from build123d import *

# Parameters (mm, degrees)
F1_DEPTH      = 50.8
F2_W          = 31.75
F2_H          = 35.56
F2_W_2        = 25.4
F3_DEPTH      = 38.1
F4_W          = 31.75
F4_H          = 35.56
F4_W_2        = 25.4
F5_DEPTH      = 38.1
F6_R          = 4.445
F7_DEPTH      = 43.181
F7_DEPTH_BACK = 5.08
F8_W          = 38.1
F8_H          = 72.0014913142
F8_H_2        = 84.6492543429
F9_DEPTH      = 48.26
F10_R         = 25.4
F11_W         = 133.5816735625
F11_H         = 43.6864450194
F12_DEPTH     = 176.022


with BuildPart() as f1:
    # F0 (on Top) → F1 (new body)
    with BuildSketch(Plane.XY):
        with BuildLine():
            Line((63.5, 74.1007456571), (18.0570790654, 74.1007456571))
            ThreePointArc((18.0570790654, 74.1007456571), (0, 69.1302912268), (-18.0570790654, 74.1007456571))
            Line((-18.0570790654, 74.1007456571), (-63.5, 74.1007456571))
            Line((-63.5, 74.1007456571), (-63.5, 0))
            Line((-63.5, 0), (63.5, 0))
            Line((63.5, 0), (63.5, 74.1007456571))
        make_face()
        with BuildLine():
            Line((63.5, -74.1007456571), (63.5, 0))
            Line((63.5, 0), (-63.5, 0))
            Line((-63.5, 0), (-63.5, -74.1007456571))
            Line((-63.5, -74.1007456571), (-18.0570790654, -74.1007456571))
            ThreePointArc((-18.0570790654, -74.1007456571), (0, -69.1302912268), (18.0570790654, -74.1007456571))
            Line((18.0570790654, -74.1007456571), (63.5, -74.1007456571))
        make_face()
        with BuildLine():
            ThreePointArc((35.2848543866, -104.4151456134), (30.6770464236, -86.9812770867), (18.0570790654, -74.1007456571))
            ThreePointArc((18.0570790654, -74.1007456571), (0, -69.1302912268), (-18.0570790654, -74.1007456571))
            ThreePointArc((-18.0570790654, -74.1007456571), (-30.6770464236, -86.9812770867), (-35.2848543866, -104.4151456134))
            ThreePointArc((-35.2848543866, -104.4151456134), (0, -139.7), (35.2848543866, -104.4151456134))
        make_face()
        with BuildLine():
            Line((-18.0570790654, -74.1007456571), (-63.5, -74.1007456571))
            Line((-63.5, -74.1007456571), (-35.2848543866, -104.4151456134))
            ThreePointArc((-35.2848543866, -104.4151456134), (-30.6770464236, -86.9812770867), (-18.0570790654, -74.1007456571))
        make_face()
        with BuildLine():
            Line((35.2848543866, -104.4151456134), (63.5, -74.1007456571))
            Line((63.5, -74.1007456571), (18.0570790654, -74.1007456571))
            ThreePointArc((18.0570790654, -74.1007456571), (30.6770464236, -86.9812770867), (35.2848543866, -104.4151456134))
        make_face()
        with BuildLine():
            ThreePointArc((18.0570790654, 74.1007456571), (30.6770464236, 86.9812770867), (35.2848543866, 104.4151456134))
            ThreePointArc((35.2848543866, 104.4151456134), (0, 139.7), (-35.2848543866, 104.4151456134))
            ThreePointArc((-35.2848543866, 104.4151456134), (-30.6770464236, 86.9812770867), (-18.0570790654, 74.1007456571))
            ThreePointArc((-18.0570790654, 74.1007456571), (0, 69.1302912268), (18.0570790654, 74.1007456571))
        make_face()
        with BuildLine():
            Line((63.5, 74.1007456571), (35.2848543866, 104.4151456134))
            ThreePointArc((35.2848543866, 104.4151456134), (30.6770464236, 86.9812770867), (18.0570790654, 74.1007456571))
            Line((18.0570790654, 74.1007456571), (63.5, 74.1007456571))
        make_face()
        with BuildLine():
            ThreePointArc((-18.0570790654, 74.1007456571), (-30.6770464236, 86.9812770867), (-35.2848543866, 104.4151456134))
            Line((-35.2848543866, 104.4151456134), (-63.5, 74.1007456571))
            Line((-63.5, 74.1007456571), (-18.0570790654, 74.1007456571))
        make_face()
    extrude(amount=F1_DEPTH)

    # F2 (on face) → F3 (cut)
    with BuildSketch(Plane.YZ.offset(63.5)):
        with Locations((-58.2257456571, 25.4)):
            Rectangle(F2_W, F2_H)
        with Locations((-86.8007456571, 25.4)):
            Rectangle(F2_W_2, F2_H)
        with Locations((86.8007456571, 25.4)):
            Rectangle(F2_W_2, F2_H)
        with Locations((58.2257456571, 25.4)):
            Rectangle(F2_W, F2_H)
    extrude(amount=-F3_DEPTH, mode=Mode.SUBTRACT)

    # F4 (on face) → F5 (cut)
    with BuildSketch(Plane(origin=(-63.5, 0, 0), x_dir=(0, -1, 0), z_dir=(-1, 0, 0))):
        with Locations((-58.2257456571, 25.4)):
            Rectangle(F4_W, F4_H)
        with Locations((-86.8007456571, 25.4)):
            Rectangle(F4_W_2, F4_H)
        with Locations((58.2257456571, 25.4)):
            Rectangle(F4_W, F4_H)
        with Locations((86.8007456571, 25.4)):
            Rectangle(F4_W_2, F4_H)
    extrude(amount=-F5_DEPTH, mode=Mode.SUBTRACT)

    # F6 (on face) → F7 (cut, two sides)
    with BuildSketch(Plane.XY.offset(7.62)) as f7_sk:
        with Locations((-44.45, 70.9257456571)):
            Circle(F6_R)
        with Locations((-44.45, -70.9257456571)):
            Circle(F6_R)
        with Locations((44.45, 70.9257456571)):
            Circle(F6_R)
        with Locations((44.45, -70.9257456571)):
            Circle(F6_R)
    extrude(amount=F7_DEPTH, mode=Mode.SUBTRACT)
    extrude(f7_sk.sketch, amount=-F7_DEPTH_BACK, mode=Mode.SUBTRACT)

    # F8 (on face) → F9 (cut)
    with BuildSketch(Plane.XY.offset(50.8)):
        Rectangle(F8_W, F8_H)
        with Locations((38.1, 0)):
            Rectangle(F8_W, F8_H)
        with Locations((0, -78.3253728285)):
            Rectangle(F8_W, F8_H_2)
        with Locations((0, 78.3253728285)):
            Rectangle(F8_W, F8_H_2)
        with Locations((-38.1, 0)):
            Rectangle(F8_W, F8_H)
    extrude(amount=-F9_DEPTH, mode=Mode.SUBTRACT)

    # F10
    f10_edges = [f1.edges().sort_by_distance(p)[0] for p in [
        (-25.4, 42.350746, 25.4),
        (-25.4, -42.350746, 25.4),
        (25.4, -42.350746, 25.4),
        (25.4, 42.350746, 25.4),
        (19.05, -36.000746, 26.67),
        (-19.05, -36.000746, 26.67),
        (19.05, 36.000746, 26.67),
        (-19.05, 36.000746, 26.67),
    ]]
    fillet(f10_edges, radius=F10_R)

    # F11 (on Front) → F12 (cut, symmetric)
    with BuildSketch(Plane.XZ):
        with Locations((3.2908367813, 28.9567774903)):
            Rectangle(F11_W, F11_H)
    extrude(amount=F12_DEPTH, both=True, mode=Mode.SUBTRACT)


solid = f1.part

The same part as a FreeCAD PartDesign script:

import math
import FreeCAD as App
import Part
import Sketcher

V = App.Vector
Q = App.Units.Quantity


def edges_at(feature, points):
    """Names of the edges that pass closest to the given points."""
    edges = feature.Shape.Edges
    near = lambda p: min(range(len(edges)), key=lambda i: edges[i].distToShape(Part.Vertex(*p))[0])
    return sorted({f"Edge{near(p) + 1}" for p in points})

doc = App.newDocument("Part")
params = doc.addObject("Spreadsheet::Sheet", "Params")
for row, (alias, value) in enumerate([
    ("pad1_length", "2 in"),
    ("sketch2_height", "1.4 in"),
    ("sketch2_width", "2.25 in"),
    ("pocket1_length", "1.5 in"),
    ("sketch3_height", "1.4 in"),
    ("sketch3_width", "2.25 in"),
    ("pocket2_length", "1.5 in"),
    ("sketch4_diameter", "0.35 in"),
    ("pocket3_length", "43.181 mm"),
    ("pocket3_length2", "0.2 in"),
    ("sketch5_width", "1.5 in"),
    ("pocket4_length", "1.9 in"),
    ("fillet_radius", "1 in"),
    ("pocket5_length", "13.86 in"),
], start=1):
    params.set(f"A{row}", alias)
    params.set(f"B{row}", "=" + value)
    params.setAlias(f"B{row}", alias)

body = doc.addObject("PartDesign::Body", "Body")

# Sketch on XY plane
sketch1 = doc.addObject("Sketcher::SketchObject", "Sketch")
body.addObject(sketch1)
sketch1.AttachmentSupport = (doc.XY_Plane, [""])
sketch1.MapMode = "FlatFace"
sketch1.addGeometry([
    Part.ArcOfCircle(Part.Circle(V(0, 104, 0), V(0, 0, 1), 35), math.radians(0), math.radians(180)),  # 0
    Part.LineSegment(V(-35, 104, 0), V(-64, 74, 0)),  # 1
    Part.LineSegment(V(-64, 74, 0), V(-64, -74, 0)),  # 2
    Part.LineSegment(V(-64, -74, 0), V(-35, -104, 0)),  # 3
    Part.ArcOfCircle(Part.Circle(V(0, -104, 0), V(0, 0, 1), 35), math.radians(180), math.radians(360)),  # 4
    Part.LineSegment(V(35, -104, 0), V(64, -74, 0)),  # 5
    Part.LineSegment(V(64, -74, 0), V(64, 74, 0)),  # 6
    Part.LineSegment(V(64, 74, 0), V(35, 104, 0)),  # 7
], False)
sketch1.addConstraint([
    Sketcher.Constraint("Coincident", 0, 2, 1, 1),
    Sketcher.Constraint("Coincident", 1, 2, 2, 1),
    Sketcher.Constraint("Coincident", 2, 2, 3, 1),
    Sketcher.Constraint("Coincident", 3, 2, 4, 1),
    Sketcher.Constraint("Coincident", 4, 2, 5, 1),
    Sketcher.Constraint("Coincident", 5, 2, 6, 1),
    Sketcher.Constraint("Coincident", 6, 2, 7, 1),
    Sketcher.Constraint("Coincident", 7, 2, 0, 1),
    Sketcher.Constraint("Vertical", 2),
    Sketcher.Constraint("Vertical", 6),
    Sketcher.Constraint("Equal", 0, 4),
    Sketcher.Constraint("Symmetric", 0, 3, 4, 3, -1, 1),
    Sketcher.Constraint("Symmetric", 1, 2, 5, 2, -1, 1),
    Sketcher.Constraint("Symmetric", 3, 2, 4, 2, -2),
    Sketcher.Constraint("Parallel", 1, 5),
    Sketcher.Constraint("Parallel", 3, 7),
    Sketcher.Constraint("Horizontal", 4, 3, 3, 2),
    Sketcher.Constraint("Horizontal", 2, 2, 5, 2),
    Sketcher.Constraint("Horizontal", 1, 2, 6, 2),
    Sketcher.Constraint("DistanceX", 2, 2, 5, 2, Q("5 in")),
    Sketcher.Constraint("Radius", 0, 35.284854),
    Sketcher.Constraint("DistanceY", 2, 2, 2, 1, 148.201491),
    Sketcher.Constraint("DistanceY", 1, 2, 0, 2, 30.3144),
])
pad1 = doc.addObject("PartDesign::Pad", "Pad")
body.addObject(pad1)
pad1.Profile = sketch1
pad1.setExpression("Length", "Params.pad1_length")

# Sketch on YZ plane
sketch2 = doc.addObject("Sketcher::SketchObject", "Sketch001")
body.addObject(sketch2)
sketch2.AttachmentSupport = (doc.YZ_Plane, [""])
sketch2.MapMode = "FlatFace"
sketch2.AttachmentOffset = App.Placement(V(0, 0, 2.5 * 25.4), App.Rotation())
sketch2.addGeometry([
    Part.LineSegment(V(-42, 8, 0), V(-42, 43, 0)),  # 0
    Part.LineSegment(V(-42, 43, 0), V(-100, 43, 0)),  # 1
    Part.LineSegment(V(-100, 43, 0), V(-100, 8, 0)),  # 2
    Part.LineSegment(V(-100, 8, 0), V(-42, 8, 0)),  # 3
    Part.LineSegment(V(100, 8, 0), V(100, 43, 0)),  # 4
    Part.LineSegment(V(100, 43, 0), V(42, 43, 0)),  # 5
    Part.LineSegment(V(42, 43, 0), V(42, 8, 0)),  # 6
    Part.LineSegment(V(42, 8, 0), V(100, 8, 0)),  # 7
], False)
sketch2.addConstraint([
    Sketcher.Constraint("Coincident", 0, 2, 1, 1),
    Sketcher.Constraint("Coincident", 1, 2, 2, 1),
    Sketcher.Constraint("Coincident", 2, 2, 3, 1),
    Sketcher.Constraint("Coincident", 3, 2, 0, 1),
    Sketcher.Constraint("Coincident", 4, 2, 5, 1),
    Sketcher.Constraint("Coincident", 5, 2, 6, 1),
    Sketcher.Constraint("Coincident", 6, 2, 7, 1),
    Sketcher.Constraint("Coincident", 7, 2, 4, 1),
    Sketcher.Constraint("Vertical", 0),
    Sketcher.Constraint("Horizontal", 1),
    Sketcher.Constraint("Vertical", 2),
    Sketcher.Constraint("Horizontal", 3),
    Sketcher.Constraint("Vertical", 4),
    Sketcher.Constraint("Horizontal", 5),
    Sketcher.Constraint("Vertical", 6),
    Sketcher.Constraint("Horizontal", 7),
    Sketcher.Constraint("Symmetric", 1, 2, 4, 2, -2),
    Sketcher.Constraint("Symmetric", 3, 2, 6, 2, -2),
    Sketcher.Constraint("DistanceY", 0, 1, 0, 2, Q("1.4 in")),
    Sketcher.Constraint("DistanceX", 1, 2, 1, 1, Q("2.25 in")),
    Sketcher.Constraint("DistanceY", -1, 1, 0, 2, Q("1.7 in")),
    Sketcher.Constraint("DistanceX", 0, 2, 4, 2, 141.851491),
])
sketch2.setExpression("Constraints[18]", "Params.sketch2_height")
sketch2.setExpression("Constraints[19]", "Params.sketch2_width")
pocket1 = doc.addObject("PartDesign::Pocket", "Pocket")
body.addObject(pocket1)
pocket1.Profile = sketch2
pocket1.setExpression("Length", "Params.pocket1_length")

# Sketch on YZ plane
sketch3 = doc.addObject("Sketcher::SketchObject", "Sketch002")
body.addObject(sketch3)
sketch3.AttachmentSupport = (doc.YZ_Plane, [""])
sketch3.MapMode = "FlatFace"
sketch3.AttachmentOffset = App.Placement(V(0, 0, -2.5 * 25.4), App.Rotation())
sketch3.addGeometry([
    Part.LineSegment(V(42, 8, 0), V(42, 43, 0)),  # 0
    Part.LineSegment(V(42, 43, 0), V(100, 43, 0)),  # 1
    Part.LineSegment(V(100, 43, 0), V(100, 8, 0)),  # 2
    Part.LineSegment(V(100, 8, 0), V(42, 8, 0)),  # 3
    Part.LineSegment(V(-42, 43, 0), V(-42, 8, 0)),  # 4
    Part.LineSegment(V(-42, 8, 0), V(-100, 8, 0)),  # 5
    Part.LineSegment(V(-100, 8, 0), V(-100, 43, 0)),  # 6
    Part.LineSegment(V(-100, 43, 0), V(-42, 43, 0)),  # 7
], False)
sketch3.addConstraint([
    Sketcher.Constraint("Coincident", 0, 2, 1, 1),
    Sketcher.Constraint("Coincident", 1, 2, 2, 1),
    Sketcher.Constraint("Coincident", 2, 2, 3, 1),
    Sketcher.Constraint("Coincident", 3, 2, 0, 1),
    Sketcher.Constraint("Coincident", 4, 2, 5, 1),
    Sketcher.Constraint("Coincident", 5, 2, 6, 1),
    Sketcher.Constraint("Coincident", 6, 2, 7, 1),
    Sketcher.Constraint("Coincident", 7, 2, 4, 1),
    Sketcher.Constraint("Vertical", 0),
    Sketcher.Constraint("Horizontal", 1),
    Sketcher.Constraint("Vertical", 2),
    Sketcher.Constraint("Horizontal", 3),
    Sketcher.Constraint("Vertical", 4),
    Sketcher.Constraint("Horizontal", 5),
    Sketcher.Constraint("Vertical", 6),
    Sketcher.Constraint("Horizontal", 7),
    Sketcher.Constraint("Symmetric", 3, 2, 4, 2, -2),
    Sketcher.Constraint("Symmetric", 1, 2, 6, 2, -2),
    Sketcher.Constraint("DistanceY", 0, 1, 0, 2, Q("1.4 in")),
    Sketcher.Constraint("DistanceX", 1, 1, 1, 2, Q("2.25 in")),
    Sketcher.Constraint("DistanceY", -1, 1, 0, 2, Q("1.7 in")),
    Sketcher.Constraint("DistanceX", 4, 2, 3, 2, 84.701491),
])
sketch3.setExpression("Constraints[18]", "Params.sketch3_height")
sketch3.setExpression("Constraints[19]", "Params.sketch3_width")
pocket2 = doc.addObject("PartDesign::Pocket", "Pocket001")
body.addObject(pocket2)
pocket2.Profile = sketch3
pocket2.setExpression("Length", "Params.pocket2_length")
pocket2.Reversed = True

# Sketch on XY plane
sketch4 = doc.addObject("Sketcher::SketchObject", "Sketch003")
body.addObject(sketch4)
sketch4.AttachmentSupport = (doc.XY_Plane, [""])
sketch4.MapMode = "FlatFace"
sketch4.AttachmentOffset = App.Placement(V(0, 0, 0.3 * 25.4), App.Rotation())
sketch4.addGeometry([
    Part.Circle(V(-44.5, 70.9, 0), V(0, 0, 1), 4.4),
    Part.Circle(V(-44.5, -70.9, 0), V(0, 0, 1), 4.4),
    Part.Circle(V(44.5, 70.9, 0), V(0, 0, 1), 4.4),
    Part.Circle(V(44.5, -70.9, 0), V(0, 0, 1), 4.4),
], False)
sketch4.addConstraint([
    Sketcher.Constraint("Equal", 0, 1),
    Sketcher.Constraint("Equal", 1, 2),
    Sketcher.Constraint("Equal", 2, 3),
    Sketcher.Constraint("Symmetric", 1, 3, 2, 3, -1, 1),
    Sketcher.Constraint("Symmetric", 0, 3, 3, 3, -1, 1),
    Sketcher.Constraint("Symmetric", 0, 3, 2, 3, -2),
    Sketcher.Constraint("Diameter", 0, Q("0.35 in")),
    Sketcher.Constraint("DistanceX", 0, 3, 2, 3, Q("3.5 in")),
    Sketcher.Constraint("DistanceY", 1, 3, 0, 3, 141.851491),
])
sketch4.setExpression("Constraints[6]", "Params.sketch4_diameter")
pocket3 = doc.addObject("PartDesign::Pocket", "Pocket002")
body.addObject(pocket3)
pocket3.Profile = sketch4
pocket3.Type = "TwoLengths"
pocket3.setExpression("Length", "Params.pocket3_length")
pocket3.setExpression("Length2", "Params.pocket3_length2")
pocket3.Reversed = True

# Sketch on XY plane
sketch5 = doc.addObject("Sketcher::SketchObject", "Sketch004")
body.addObject(sketch5)
sketch5.AttachmentSupport = (doc.XY_Plane, [""])
sketch5.MapMode = "FlatFace"
sketch5.AttachmentOffset = App.Placement(V(0, 0, 2 * 25.4), App.Rotation())
sketch5.addGeometry([
    Part.LineSegment(V(-19, -121, 0), V(19, -121, 0)),  # 0
    Part.LineSegment(V(19, -121, 0), V(19, -36, 0)),  # 1
    Part.LineSegment(V(19, -36, 0), V(57, -36, 0)),  # 2
    Part.LineSegment(V(57, -36, 0), V(57, 36, 0)),  # 3
    Part.LineSegment(V(57, 36, 0), V(19, 36, 0)),  # 4
    Part.LineSegment(V(19, 36, 0), V(19, 121, 0)),  # 5
    Part.LineSegment(V(19, 121, 0), V(-19, 121, 0)),  # 6
    Part.LineSegment(V(-19, 121, 0), V(-19, 36, 0)),  # 7
    Part.LineSegment(V(-19, 36, 0), V(-57, 36, 0)),  # 8
    Part.LineSegment(V(-57, 36, 0), V(-57, -36, 0)),  # 9
    Part.LineSegment(V(-57, -36, 0), V(-19, -36, 0)),  # 10
    Part.LineSegment(V(-19, -36, 0), V(-19, -121, 0)),  # 11
], False)
sketch5.addConstraint([
    Sketcher.Constraint("Coincident", 0, 2, 1, 1),
    Sketcher.Constraint("Coincident", 1, 2, 2, 1),
    Sketcher.Constraint("Coincident", 2, 2, 3, 1),
    Sketcher.Constraint("Coincident", 3, 2, 4, 1),
    Sketcher.Constraint("Coincident", 4, 2, 5, 1),
    Sketcher.Constraint("Coincident", 5, 2, 6, 1),
    Sketcher.Constraint("Coincident", 6, 2, 7, 1),
    Sketcher.Constraint("Coincident", 7, 2, 8, 1),
    Sketcher.Constraint("Coincident", 8, 2, 9, 1),
    Sketcher.Constraint("Coincident", 9, 2, 10, 1),
    Sketcher.Constraint("Coincident", 10, 2, 11, 1),
    Sketcher.Constraint("Coincident", 11, 2, 0, 1),
    Sketcher.Constraint("Horizontal", 0),
    Sketcher.Constraint("Vertical", 1),
    Sketcher.Constraint("Horizontal", 2),
    Sketcher.Constraint("Vertical", 3),
    Sketcher.Constraint("Horizontal", 4),
    Sketcher.Constraint("Vertical", 5),
    Sketcher.Constraint("Horizontal", 6),
    Sketcher.Constraint("Vertical", 7),
    Sketcher.Constraint("Horizontal", 8),
    Sketcher.Constraint("Vertical", 9),
    Sketcher.Constraint("Horizontal", 10),
    Sketcher.Constraint("Vertical", 11),
    Sketcher.Constraint("Symmetric", 0, 2, 6, 2, -1, 1),
    Sketcher.Constraint("Symmetric", 2, 2, 8, 2, -1, 1),
    Sketcher.Constraint("Symmetric", 4, 2, 10, 2, -1, 1),
    Sketcher.Constraint("Symmetric", 4, 2, 7, 2, -2),
    Sketcher.Constraint("Equal", 0, 2),
    Sketcher.Constraint("DistanceX", 0, 1, 0, 2, Q("1.5 in")),
    Sketcher.Constraint("DistanceY", 0, 2, 5, 2, Q("9.5 in")),
    Sketcher.Constraint("DistanceY", 3, 1, 3, 2, 72.001491),
])
sketch5.setExpression("Constraints[29]", "Params.sketch5_width")
pocket4 = doc.addObject("PartDesign::Pocket", "Pocket003")
body.addObject(pocket4)
pocket4.Profile = sketch5
pocket4.setExpression("Length", "Params.pocket4_length")
doc.recompute()

fillet = doc.addObject("PartDesign::Fillet", "Fillet")
body.addObject(fillet)
fillet.Base = (pocket4, edges_at(pocket4, [
    (-25.4, 42.351, 25.4),
    (-25.4, -42.351, 25.4),
    (25.4, -42.351, 25.4),
    (25.4, 42.351, 25.4),
    (19.05, -36.001, 26.67),
    (-19.05, -36.001, 26.67),
    (19.05, 36.001, 26.67),
    (-19.05, 36.001, 26.67),
]))
fillet.setExpression("Radius", "Params.fillet_radius")

# Sketch on XZ plane
sketch6 = doc.addObject("Sketcher::SketchObject", "Sketch005")
body.addObject(sketch6)
sketch6.AttachmentSupport = (doc.XZ_Plane, [""])
sketch6.MapMode = "FlatFace"
sketch6.addGeometry([
    Part.LineSegment(V(-64, 51, 0), V(-64, 7, 0)),
    Part.LineSegment(V(-64, 7, 0), V(70, 7, 0)),
    Part.LineSegment(V(70, 7, 0), V(70, 51, 0)),
    Part.LineSegment(V(70, 51, 0), V(-64, 51, 0)),
], False)
sketch6.addConstraint([
    Sketcher.Constraint("Coincident", 0, 2, 1, 1),
    Sketcher.Constraint("Coincident", 1, 2, 2, 1),
    Sketcher.Constraint("Coincident", 2, 2, 3, 1),
    Sketcher.Constraint("Coincident", 3, 2, 0, 1),
    Sketcher.Constraint("Vertical", 0),
    Sketcher.Constraint("Horizontal", 1),
    Sketcher.Constraint("Vertical", 2),
    Sketcher.Constraint("Horizontal", 3),
    Sketcher.Constraint("DistanceY", -1, 1, 2, 2, Q("2 in")),
    Sketcher.Constraint("DistanceX", 0, 2, -1, 1, Q("2.5 in")),
    Sketcher.Constraint("DistanceX", 1, 1, 1, 2, 133.581674),
    Sketcher.Constraint("DistanceY", 0, 2, 0, 1, 43.686445),
])
pocket5 = doc.addObject("PartDesign::Pocket", "Pocket004")
body.addObject(pocket5)
pocket5.Profile = sketch6
pocket5.setExpression("Length", "Params.pocket5_length")
pocket5.Midplane = True

doc.recompute()
